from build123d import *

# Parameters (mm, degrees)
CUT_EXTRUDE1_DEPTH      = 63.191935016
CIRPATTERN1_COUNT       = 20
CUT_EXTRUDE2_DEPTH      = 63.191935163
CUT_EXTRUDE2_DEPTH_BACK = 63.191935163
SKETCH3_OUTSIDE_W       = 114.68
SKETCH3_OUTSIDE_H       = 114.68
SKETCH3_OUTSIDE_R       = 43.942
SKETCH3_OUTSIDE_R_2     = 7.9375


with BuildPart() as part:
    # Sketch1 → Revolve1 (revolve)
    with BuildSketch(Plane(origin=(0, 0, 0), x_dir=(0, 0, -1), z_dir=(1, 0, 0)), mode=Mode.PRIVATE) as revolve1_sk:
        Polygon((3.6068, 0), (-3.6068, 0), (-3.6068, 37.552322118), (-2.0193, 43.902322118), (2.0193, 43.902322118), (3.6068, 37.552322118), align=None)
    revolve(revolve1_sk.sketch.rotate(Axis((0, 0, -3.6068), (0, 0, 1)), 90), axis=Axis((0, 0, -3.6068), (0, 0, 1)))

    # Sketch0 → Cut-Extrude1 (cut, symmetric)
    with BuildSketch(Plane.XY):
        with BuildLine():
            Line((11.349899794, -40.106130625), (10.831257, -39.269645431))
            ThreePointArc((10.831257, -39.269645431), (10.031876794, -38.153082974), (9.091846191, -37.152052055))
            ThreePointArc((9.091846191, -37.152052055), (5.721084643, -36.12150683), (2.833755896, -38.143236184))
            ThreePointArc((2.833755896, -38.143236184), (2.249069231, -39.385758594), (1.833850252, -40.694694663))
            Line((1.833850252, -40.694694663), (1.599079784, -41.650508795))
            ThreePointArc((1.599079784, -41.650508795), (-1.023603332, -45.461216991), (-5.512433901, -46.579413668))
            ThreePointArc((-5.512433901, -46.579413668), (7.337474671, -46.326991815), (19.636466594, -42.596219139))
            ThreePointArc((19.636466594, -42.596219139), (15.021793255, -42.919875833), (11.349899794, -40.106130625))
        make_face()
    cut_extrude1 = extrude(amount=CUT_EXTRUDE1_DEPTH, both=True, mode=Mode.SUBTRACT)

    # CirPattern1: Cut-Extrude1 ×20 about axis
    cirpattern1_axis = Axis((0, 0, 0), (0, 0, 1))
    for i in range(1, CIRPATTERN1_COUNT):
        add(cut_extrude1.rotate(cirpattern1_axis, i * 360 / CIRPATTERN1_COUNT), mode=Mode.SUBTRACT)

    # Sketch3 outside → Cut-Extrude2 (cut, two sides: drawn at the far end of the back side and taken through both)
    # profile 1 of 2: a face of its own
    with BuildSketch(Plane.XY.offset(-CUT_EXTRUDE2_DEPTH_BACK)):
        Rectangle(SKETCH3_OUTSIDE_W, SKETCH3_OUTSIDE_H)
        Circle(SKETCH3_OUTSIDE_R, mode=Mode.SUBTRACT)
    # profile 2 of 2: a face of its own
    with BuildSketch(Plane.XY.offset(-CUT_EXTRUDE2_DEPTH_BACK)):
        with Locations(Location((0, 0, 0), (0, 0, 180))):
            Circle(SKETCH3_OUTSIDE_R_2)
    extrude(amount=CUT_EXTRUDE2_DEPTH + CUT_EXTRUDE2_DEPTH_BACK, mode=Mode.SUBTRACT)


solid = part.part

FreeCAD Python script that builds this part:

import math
import FreeCAD as App
import Part
import Sketcher
Q = App.Units.Quantity


def add_polygon(sketch, points):
    """Adds a closed chain of lines whose ends are joined by coincident constraints."""
    first, n = sketch.GeometryCount, len(points)
    for a, b in zip(points, points[1:] + points[:1]):
        sketch.addGeometry(Part.LineSegment(App.Vector(*a, 0), App.Vector(*b, 0)), False)
    for i in range(n):
        sketch.addConstraint(Sketcher.Constraint("Coincident", first + i, 2, first + (i + 1) % n, 1))

doc = App.newDocument("Part")
body = doc.addObject("PartDesign::Body", "Body")

# Sketch on YZ plane
sketch1 = body.newObject("Sketcher::SketchObject", "Sketch")
sketch1.AttachmentSupport = (doc.getObject("YZ_Plane"), [""])
sketch1.MapMode = "FlatFace"
add_polygon(sketch1, [(0, 3.6068), (0, -3.6068), (37.552322, -3.6068), (43.902322, -2.0193), (43.902322, 2.0193), (37.552322, 3.6068)])  # lines 0-5
sketch1.addConstraint(Sketcher.Constraint("Vertical", 0))
sketch1.addConstraint(Sketcher.Constraint("Horizontal", 1))
sketch1.addConstraint(Sketcher.Constraint("Vertical", 3))
sketch1.addConstraint(Sketcher.Constraint("Horizontal", 5))
sketch1.addConstraint(Sketcher.Constraint("Symmetric", 0, 2, 5, 2, -1, 1))
sketch1.addConstraint(Sketcher.Constraint("Vertical", 1, 2, 4, 2))
sketch1.addConstraint(Sketcher.Constraint("Equal", 2, 4))
sketch1.addConstraint(Sketcher.Constraint("DistanceY", 0, 2, 0, 1, Q("0.284 in")))
sketch1.addConstraint(Sketcher.Constraint("DistanceY", 3, 1, 3, 2, Q("0.159 in")))
sketch1.addConstraint(Sketcher.Constraint("DistanceX", 1, 2, 2, 2, Q("0.25 in")))
sketch1.addConstraint(Sketcher.Constraint("DistanceX", 1, 1, 1, 2, 37.552322))
revolution = body.newObject("PartDesign::Revolution", "Revolution")
revolution.Profile = sketch1
revolution.ReferenceAxis = (sketch1, ["V_Axis"])
revolution.Angle = 360

# Sketch on XY plane
sketch2 = body.newObject("Sketcher::SketchObject", "Sketch001")
sketch2.AttachmentSupport = (doc.getObject("XY_Plane"), [""])
sketch2.MapMode = "FlatFace"
sketch2.addGeometry(Part.LineSegment(App.Vector(11.3499, -40.106131, 0), App.Vector(10.831257, -39.269645, 0)), False)
sketch2.addGeometry(Part.ArcOfCircle(Part.Circle(App.Vector(2.02624, -44.728988, 0), App.Vector(0, 0, 1), 10.360152), math.radians(31.8), math.radians(47)), False)
sketch2.addGeometry(Part.ArcOfCircle(Part.Circle(App.Vector(6.35, -40.092322, 0), App.Vector(0, 0, 1), 4.020312), math.radians(47), math.radians(151)), False)
sketch2.addGeometry(Part.ArcOfCircle(Part.Circle(App.Vector(11.894949, -43.165938, 0), App.Vector(0, 0, 1), 10.360152), math.radians(151), math.radians(166.2)), False)
sketch2.addGeometry(Part.LineSegment(App.Vector(1.83385, -40.694695, 0), App.Vector(1.59908, -41.650509, 0)), False)
sketch2.addGeometry(Part.ArcOfCircle(Part.Circle(App.Vector(-4.74472, -40.092322, 0), App.Vector(0, 0, 1), 6.532361), math.radians(-96.749269), math.radians(-13.8)), False)
sketch2.addGeometry(Part.ArcOfCircle(Part.Circle(App.Vector(0, 0, 0), App.Vector(0, 0, 1), 46.904464), math.radians(-96.749269), math.radians(-65.250731)), False)
sketch2.addGeometry(Part.ArcOfCircle(Part.Circle(App.Vector(16.901706, -36.663865, 0), App.Vector(0, 0, 1), 6.532361), math.radians(-148.2), math.radians(-65.250732)), False)
sketch2.addConstraint(Sketcher.Constraint("Tangent", 0, 2, 1, 1))
sketch2.addConstraint(Sketcher.Constraint("Tangent", 1, 2, 2, 1))
sketch2.addConstraint(Sketcher.Constraint("Tangent", 2, 2, 3, 1))
sketch2.addConstraint(Sketcher.Constraint("Tangent", 3, 2, 4, 1))
sketch2.addConstraint(Sketcher.Constraint("Tangent", 4, 2, 5, 2))
sketch2.addConstraint(Sketcher.Constraint("Tangent", 5, 1, 6, 1))
sketch2.addConstraint(Sketcher.Constraint("Tangent", 6, 2, 7, 2))
sketch2.addConstraint(Sketcher.Constraint("Tangent", 7, 1, 0, 1))
sketch2.addConstraint(Sketcher.Constraint("Coincident", 6, 3, -1, 1))
sketch2.addConstraint(Sketcher.Constraint("Equal", 1, 3))
sketch2.addConstraint(Sketcher.Constraint("Equal", 5, 7))
sketch2.addConstraint(Sketcher.Constraint("Horizontal", 2, 3, 5, 3))
sketch2.addConstraint(Sketcher.Constraint("Equal", 0, 4))
sketch2.addConstraint(Sketcher.Constraint("Angle", 0, Q("121.8 deg")))
sketch2.addConstraint(Sketcher.Constraint("Angle", 4, Q("-103.8 deg")))
sketch2.addConstraint(Sketcher.Constraint("DistanceX", -1, 1, 2, 3, Q("0.25 in")))
sketch2.addConstraint(Sketcher.Constraint("Radius", 2, 4.020312))
sketch2.addConstraint(Sketcher.Constraint("Radius", 3, 10.360152))
sketch2.addConstraint(Sketcher.Constraint("Radius", 5, 6.532361))
sketch2.addConstraint(Sketcher.Constraint("DistanceX", 5, 3, -1, 1, Q("0.1868 in")))
sketch2.addConstraint(Sketcher.Constraint("Radius", 6, 46.904464))
pocket1 = body.newObject("PartDesign::Pocket", "Pocket")
pocket1.Profile = sketch2
pocket1.Length = 126.38387
pocket1.Midplane = True
doc.recompute()

polarpattern = body.newObject("PartDesign::PolarPattern", "PolarPattern")
polarpattern.Originals = [pocket1]
polarpattern.Axis = (doc.getObject("Z_Axis"), [""])
polarpattern.Angle = 360
polarpattern.Occurrences = 20
body.Tip = polarpattern

# Sketch on XY plane
sketch3 = body.newObject("Sketcher::SketchObject", "Sketch002")
sketch3.AttachmentSupport = (doc.getObject("XY_Plane"), [""])
sketch3.MapMode = "FlatFace"
add_polygon(sketch3, [(-57.34, 57.34), (-57.34, -57.34), (57.34, -57.34), (57.34, 57.34)])  # lines 0-3
sketch3.addGeometry(Part.Circle(App.Vector(0, 0, 0), App.Vector(0, 0, 1), 43.942), False)  # 4
sketch3.addGeometry(Part.Circle(App.Vector(0, 0, 0), App.Vector(0, 0, 1), 7.9375), False)  # 5
sketch3.addConstraint(Sketcher.Constraint("Vertical", 0))
sketch3.addConstraint(Sketcher.Constraint("Horizontal", 1))
sketch3.addConstraint(Sketcher.Constraint("Vertical", 2))
sketch3.addConstraint(Sketcher.Constraint("Horizontal", 3))
sketch3.addConstraint(Sketcher.Constraint("Coincident", 4, 3, -1, 1))
sketch3.addConstraint(Sketcher.Constraint("Coincident", 5, 3, -1, 1))
sketch3.addConstraint(Sketcher.Constraint("Symmetric", 0, 2, 2, 2, -1, 1))
sketch3.addConstraint(Sketcher.Constraint("Equal", 3, 0))
sketch3.addConstraint(Sketcher.Constraint("Diameter", 4, Q("3.46 in")))
sketch3.addConstraint(Sketcher.Constraint("Diameter", 5, Q("0.625 in")))
sketch3.addConstraint(Sketcher.Constraint("DistanceX", 1, 1, 1, 2, 114.68))
pocket2 = body.newObject("PartDesign::Pocket", "Pocket001")
pocket2.Profile = sketch3
pocket2.Type = "ThroughAll"
pocket2.Midplane = True

doc.recompute()
